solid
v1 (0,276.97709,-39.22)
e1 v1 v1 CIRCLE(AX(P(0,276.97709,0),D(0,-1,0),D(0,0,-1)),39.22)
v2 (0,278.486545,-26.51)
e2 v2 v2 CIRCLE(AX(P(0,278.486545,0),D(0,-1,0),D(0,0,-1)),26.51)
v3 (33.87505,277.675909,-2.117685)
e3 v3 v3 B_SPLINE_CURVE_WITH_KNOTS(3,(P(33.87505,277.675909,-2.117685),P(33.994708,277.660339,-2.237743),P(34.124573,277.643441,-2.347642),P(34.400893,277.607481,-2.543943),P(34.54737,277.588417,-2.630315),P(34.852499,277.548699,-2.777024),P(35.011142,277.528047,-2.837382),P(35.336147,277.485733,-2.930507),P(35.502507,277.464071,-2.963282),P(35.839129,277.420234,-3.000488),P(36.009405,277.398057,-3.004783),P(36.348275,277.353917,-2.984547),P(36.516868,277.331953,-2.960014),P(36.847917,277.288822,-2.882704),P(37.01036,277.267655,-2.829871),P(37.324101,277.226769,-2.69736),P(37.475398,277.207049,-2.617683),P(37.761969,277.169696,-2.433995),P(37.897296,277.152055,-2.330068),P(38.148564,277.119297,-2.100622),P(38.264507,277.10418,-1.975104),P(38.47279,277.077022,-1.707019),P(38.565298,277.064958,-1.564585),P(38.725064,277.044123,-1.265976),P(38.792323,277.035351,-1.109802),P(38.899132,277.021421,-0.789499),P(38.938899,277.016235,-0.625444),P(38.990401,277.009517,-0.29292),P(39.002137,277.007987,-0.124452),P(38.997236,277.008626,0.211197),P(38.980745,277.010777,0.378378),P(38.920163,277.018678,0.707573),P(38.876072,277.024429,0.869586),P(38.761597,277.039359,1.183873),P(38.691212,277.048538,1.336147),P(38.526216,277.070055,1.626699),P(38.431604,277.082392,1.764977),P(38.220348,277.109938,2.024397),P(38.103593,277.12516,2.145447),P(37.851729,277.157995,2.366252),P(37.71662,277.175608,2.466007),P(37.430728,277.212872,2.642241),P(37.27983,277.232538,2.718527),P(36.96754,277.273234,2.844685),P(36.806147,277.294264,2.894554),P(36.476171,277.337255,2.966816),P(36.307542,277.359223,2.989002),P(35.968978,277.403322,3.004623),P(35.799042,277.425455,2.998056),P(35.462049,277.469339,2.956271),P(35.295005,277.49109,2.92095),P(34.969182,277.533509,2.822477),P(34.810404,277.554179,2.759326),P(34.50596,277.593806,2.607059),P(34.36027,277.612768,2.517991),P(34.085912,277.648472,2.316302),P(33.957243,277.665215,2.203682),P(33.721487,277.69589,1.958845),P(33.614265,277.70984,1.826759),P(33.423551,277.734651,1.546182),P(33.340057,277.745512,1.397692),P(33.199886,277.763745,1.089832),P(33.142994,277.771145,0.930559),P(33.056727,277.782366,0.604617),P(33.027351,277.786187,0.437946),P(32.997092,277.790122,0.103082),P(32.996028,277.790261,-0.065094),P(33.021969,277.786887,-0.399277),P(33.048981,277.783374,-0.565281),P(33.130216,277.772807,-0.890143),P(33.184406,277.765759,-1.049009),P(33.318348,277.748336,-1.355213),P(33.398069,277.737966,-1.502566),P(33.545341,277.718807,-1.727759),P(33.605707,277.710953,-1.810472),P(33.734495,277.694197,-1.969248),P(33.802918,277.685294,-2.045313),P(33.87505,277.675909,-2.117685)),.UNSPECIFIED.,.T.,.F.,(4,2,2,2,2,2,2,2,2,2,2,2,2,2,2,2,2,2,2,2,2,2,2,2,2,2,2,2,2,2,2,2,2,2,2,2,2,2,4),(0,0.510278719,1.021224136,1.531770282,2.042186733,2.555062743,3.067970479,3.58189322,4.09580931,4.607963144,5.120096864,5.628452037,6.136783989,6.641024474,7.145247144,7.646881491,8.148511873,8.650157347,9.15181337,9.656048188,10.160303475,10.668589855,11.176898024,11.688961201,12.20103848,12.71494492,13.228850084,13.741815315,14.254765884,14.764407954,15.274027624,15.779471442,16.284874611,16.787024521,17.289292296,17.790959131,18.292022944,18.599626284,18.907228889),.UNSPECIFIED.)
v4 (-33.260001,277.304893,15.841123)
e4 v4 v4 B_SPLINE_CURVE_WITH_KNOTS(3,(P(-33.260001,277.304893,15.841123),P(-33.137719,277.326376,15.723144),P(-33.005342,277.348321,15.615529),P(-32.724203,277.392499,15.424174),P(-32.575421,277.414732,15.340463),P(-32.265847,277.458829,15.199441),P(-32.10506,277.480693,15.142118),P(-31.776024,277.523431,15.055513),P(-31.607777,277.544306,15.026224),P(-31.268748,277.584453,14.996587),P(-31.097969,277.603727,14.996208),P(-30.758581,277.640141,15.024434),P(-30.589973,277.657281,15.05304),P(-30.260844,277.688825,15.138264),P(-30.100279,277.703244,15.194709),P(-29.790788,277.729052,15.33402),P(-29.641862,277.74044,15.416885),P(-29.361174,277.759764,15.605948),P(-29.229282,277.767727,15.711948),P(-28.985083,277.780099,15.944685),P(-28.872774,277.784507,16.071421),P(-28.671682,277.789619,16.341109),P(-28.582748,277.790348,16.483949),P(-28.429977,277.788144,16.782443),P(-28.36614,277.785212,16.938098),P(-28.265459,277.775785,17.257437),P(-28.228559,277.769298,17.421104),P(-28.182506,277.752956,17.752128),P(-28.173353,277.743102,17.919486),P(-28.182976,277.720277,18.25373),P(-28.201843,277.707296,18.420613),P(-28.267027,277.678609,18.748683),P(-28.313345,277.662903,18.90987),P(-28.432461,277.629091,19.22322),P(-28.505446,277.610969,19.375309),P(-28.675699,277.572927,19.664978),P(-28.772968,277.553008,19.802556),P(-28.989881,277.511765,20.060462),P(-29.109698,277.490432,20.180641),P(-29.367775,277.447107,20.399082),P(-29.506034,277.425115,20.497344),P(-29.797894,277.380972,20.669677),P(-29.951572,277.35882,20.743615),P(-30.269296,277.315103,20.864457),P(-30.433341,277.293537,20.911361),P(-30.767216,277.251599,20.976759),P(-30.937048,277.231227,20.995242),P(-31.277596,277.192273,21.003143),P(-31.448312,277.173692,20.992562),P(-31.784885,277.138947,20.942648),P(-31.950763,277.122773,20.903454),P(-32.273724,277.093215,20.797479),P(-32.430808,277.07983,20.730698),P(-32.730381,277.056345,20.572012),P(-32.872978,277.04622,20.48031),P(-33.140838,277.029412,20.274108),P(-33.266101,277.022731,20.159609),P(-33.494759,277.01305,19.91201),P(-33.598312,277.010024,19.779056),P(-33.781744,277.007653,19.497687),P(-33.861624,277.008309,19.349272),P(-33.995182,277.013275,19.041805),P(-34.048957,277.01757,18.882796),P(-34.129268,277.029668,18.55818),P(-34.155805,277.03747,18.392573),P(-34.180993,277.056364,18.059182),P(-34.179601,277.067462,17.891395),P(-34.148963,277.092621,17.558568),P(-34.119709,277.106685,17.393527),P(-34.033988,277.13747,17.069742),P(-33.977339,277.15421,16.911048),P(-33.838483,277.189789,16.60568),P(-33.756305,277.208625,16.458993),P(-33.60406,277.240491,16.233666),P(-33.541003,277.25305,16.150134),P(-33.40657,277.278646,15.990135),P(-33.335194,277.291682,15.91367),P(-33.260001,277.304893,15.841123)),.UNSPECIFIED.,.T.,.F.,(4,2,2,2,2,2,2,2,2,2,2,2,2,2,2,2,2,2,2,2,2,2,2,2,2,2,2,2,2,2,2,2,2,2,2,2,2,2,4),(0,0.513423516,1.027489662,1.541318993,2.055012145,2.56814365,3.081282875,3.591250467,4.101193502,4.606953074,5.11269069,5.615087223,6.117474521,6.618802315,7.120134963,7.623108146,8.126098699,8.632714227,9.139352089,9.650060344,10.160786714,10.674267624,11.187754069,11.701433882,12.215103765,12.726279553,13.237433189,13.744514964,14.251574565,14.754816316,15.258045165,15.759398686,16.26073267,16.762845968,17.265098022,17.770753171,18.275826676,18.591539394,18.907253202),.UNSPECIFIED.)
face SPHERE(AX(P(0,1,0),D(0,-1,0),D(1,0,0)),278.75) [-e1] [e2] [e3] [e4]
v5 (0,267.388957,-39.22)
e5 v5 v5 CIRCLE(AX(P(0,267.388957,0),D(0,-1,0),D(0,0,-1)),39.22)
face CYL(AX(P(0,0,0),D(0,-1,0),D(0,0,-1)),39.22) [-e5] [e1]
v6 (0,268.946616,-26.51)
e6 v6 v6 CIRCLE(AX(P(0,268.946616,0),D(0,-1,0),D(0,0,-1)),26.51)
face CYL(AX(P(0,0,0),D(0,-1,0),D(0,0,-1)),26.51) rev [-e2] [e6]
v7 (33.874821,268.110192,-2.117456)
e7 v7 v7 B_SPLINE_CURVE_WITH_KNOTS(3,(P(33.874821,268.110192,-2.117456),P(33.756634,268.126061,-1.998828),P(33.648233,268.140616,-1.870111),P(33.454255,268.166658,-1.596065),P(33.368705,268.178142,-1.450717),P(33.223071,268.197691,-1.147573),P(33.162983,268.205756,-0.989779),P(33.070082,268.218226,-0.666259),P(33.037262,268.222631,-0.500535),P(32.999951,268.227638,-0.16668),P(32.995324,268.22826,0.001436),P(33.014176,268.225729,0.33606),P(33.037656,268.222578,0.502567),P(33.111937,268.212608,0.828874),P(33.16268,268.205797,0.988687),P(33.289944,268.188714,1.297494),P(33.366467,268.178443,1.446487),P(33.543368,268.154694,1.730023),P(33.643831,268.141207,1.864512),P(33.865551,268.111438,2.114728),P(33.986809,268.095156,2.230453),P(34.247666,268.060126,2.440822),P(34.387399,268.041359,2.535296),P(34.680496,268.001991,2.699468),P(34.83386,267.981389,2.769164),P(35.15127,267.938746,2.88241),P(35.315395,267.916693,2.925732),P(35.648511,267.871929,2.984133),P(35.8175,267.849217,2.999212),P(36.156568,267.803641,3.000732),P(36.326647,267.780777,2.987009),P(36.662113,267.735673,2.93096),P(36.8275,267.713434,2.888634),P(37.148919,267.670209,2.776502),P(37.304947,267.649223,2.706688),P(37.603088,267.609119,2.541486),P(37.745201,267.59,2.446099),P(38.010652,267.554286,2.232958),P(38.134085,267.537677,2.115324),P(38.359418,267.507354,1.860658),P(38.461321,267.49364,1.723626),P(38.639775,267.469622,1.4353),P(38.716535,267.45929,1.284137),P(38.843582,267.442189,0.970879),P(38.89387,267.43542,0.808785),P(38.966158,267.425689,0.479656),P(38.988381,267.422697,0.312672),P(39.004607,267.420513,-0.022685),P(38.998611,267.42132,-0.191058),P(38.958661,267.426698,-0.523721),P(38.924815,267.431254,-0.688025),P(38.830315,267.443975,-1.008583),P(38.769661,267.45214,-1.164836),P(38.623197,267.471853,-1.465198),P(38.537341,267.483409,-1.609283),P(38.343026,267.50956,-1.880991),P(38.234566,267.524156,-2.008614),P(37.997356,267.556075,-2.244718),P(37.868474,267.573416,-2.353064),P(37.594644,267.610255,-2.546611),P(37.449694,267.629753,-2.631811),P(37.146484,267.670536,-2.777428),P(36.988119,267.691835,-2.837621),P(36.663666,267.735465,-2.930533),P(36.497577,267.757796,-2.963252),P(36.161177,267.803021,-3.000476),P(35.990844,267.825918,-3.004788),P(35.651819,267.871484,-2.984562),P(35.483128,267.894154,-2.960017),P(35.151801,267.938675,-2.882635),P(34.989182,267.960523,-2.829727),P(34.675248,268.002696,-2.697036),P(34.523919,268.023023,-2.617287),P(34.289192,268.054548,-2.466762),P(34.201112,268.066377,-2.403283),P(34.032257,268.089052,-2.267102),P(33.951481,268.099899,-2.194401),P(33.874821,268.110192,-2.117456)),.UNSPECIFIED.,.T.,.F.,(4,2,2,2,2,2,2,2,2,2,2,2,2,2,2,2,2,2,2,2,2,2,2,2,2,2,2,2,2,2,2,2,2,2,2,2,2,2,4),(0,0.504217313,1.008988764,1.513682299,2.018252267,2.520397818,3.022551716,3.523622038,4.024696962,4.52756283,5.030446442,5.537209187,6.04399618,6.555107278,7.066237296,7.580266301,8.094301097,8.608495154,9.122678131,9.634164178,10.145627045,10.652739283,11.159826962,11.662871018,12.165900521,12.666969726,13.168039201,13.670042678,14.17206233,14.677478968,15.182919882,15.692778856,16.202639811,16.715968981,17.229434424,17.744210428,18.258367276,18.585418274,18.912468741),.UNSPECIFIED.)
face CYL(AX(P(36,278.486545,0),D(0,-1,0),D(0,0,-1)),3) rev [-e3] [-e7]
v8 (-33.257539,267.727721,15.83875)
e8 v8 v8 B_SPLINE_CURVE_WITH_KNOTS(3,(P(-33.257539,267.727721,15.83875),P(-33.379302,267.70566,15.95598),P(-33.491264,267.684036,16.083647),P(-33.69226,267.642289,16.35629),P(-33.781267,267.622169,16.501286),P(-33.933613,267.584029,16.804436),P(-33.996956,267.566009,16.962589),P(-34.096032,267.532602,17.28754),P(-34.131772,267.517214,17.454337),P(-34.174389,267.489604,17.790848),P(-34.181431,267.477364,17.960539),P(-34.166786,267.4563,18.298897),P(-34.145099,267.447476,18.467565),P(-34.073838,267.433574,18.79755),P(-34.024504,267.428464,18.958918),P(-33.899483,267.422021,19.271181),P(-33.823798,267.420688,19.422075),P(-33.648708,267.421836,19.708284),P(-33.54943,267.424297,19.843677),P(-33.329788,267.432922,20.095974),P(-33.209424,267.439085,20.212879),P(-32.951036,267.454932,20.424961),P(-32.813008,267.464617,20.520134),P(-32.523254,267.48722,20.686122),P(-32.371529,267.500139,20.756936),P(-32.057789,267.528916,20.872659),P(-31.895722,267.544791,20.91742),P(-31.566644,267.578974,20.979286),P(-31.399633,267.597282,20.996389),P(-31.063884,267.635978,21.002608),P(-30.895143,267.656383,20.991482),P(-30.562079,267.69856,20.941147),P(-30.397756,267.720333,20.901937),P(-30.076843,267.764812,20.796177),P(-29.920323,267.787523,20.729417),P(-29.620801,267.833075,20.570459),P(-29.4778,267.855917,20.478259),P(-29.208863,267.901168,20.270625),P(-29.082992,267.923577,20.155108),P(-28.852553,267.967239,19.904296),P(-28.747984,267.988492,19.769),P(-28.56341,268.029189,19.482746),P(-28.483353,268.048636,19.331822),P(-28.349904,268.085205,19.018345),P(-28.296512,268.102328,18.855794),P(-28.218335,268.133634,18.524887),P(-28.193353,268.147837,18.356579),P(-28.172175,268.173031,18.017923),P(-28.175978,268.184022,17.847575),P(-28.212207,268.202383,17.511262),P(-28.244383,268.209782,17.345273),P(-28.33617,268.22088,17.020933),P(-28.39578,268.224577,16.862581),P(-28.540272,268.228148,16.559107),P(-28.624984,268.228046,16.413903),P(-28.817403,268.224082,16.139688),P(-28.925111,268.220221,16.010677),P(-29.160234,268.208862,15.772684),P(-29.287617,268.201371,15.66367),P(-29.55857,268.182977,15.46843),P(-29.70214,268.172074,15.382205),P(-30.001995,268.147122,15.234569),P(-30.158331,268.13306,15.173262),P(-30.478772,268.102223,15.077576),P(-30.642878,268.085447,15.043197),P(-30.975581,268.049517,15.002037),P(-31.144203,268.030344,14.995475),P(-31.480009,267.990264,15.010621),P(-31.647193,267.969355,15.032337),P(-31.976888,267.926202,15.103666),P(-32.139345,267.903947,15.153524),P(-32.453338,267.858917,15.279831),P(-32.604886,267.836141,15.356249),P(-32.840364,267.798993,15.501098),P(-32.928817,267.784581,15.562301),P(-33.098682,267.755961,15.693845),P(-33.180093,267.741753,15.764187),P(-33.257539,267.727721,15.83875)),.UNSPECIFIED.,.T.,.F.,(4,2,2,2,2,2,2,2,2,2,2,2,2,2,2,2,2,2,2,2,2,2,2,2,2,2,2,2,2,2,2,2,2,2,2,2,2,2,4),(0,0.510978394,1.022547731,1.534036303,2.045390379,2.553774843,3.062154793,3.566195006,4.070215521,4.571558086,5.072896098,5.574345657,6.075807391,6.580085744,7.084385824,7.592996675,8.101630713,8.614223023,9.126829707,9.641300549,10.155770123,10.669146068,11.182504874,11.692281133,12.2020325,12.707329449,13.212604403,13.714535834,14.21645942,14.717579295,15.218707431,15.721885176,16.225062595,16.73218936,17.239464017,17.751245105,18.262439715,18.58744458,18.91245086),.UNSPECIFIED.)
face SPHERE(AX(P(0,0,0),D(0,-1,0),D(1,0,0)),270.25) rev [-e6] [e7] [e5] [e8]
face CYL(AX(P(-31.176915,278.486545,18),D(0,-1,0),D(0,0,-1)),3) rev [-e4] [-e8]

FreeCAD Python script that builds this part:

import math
import FreeCAD as App
import Part
import Sketcher

doc = App.newDocument("Part")
body = doc.addObject("PartDesign::Body", "Body")

# Sketch on XY plane
sketch1 = body.newObject("Sketcher::SketchObject", "Sketch")
sketch1.AttachmentSupport = (doc.getObject("XY_Plane"), [""])
sketch1.MapMode = "FlatFace"
sketch1.addGeometry([
    Part.ArcOfCircle(Part.Circle(App.Vector(0, 0, 0), App.Vector(0, 0, 1), 270), math.radians(81.66), math.radians(84.37)),
    Part.LineSegment(App.Vector(39, 267, 0), App.Vector(39, 277, 0)),
    Part.ArcOfCircle(Part.Circle(App.Vector(0, 1, 0), App.Vector(0, 0, 1), 279), math.radians(81.91), math.radians(84.54)),
    Part.LineSegment(App.Vector(27, 278, 0), App.Vector(27, 269, 0)),
], False)
sketch1.addConstraint([
    Sketcher.Constraint("Coincident", 0, 1, 1, 1),
    Sketcher.Constraint("Coincident", 1, 2, 2, 1),
    Sketcher.Constraint("Coincident", 2, 2, 3, 1),
    Sketcher.Constraint("Coincident", 3, 2, 0, 2),
    Sketcher.Constraint("Vertical", 1),
    Sketcher.Constraint("Vertical", 3),
    Sketcher.Constraint("Coincident", 0, 3, -1, 1),
    Sketcher.Constraint("PointOnObject", 2, 3, -2),
    Sketcher.Constraint("Radius", 0, 270.249999),
    Sketcher.Constraint("DistanceX", -1, 1, 0, 1, 39.22),
    Sketcher.Constraint("DistanceX", -1, 1, 2, 2, 26.51),
    Sketcher.Constraint("Radius", 2, 278.750002),
    Sketcher.Constraint("DistanceY", 3, 2, 3, 1, 9.539928),
])
revolution = body.newObject("PartDesign::Revolution", "Revolution")
revolution.Profile = sketch1
revolution.ReferenceAxis = (sketch1, ["V_Axis"])
revolution.Angle = 360

# Sketch on XZ plane
sketch2 = body.newObject("Sketcher::SketchObject", "Sketch001")
sketch2.AttachmentSupport = (doc.getObject("XZ_Plane"), [""])
sketch2.MapMode = "FlatFace"
sketch2.addGeometry([
    Part.Circle(App.Vector(-31.2, 18, 0), App.Vector(0, 0, 1), 3),
    Part.Circle(App.Vector(36, 0, 0), App.Vector(0, 0, 1), 3),
], False)
sketch2.addConstraint([
    Sketcher.Constraint("Equal", 0, 1),
    Sketcher.Constraint("PointOnObject", 1, 3, -1),
    Sketcher.Constraint("Diameter", 0, 6.0),
    Sketcher.Constraint("DistanceY", -1, 1, 0, 3, 18.0),
    Sketcher.Constraint("DistanceX", -1, 1, 1, 3, 36.0),
    Sketcher.Constraint("DistanceX", 0, 3, -1, 1, 31.176915),
])
pocket1 = body.newObject("PartDesign::Pocket", "Pocket")
pocket1.Profile = sketch2
pocket1.Type = "ThroughAll"

doc.recompute()
